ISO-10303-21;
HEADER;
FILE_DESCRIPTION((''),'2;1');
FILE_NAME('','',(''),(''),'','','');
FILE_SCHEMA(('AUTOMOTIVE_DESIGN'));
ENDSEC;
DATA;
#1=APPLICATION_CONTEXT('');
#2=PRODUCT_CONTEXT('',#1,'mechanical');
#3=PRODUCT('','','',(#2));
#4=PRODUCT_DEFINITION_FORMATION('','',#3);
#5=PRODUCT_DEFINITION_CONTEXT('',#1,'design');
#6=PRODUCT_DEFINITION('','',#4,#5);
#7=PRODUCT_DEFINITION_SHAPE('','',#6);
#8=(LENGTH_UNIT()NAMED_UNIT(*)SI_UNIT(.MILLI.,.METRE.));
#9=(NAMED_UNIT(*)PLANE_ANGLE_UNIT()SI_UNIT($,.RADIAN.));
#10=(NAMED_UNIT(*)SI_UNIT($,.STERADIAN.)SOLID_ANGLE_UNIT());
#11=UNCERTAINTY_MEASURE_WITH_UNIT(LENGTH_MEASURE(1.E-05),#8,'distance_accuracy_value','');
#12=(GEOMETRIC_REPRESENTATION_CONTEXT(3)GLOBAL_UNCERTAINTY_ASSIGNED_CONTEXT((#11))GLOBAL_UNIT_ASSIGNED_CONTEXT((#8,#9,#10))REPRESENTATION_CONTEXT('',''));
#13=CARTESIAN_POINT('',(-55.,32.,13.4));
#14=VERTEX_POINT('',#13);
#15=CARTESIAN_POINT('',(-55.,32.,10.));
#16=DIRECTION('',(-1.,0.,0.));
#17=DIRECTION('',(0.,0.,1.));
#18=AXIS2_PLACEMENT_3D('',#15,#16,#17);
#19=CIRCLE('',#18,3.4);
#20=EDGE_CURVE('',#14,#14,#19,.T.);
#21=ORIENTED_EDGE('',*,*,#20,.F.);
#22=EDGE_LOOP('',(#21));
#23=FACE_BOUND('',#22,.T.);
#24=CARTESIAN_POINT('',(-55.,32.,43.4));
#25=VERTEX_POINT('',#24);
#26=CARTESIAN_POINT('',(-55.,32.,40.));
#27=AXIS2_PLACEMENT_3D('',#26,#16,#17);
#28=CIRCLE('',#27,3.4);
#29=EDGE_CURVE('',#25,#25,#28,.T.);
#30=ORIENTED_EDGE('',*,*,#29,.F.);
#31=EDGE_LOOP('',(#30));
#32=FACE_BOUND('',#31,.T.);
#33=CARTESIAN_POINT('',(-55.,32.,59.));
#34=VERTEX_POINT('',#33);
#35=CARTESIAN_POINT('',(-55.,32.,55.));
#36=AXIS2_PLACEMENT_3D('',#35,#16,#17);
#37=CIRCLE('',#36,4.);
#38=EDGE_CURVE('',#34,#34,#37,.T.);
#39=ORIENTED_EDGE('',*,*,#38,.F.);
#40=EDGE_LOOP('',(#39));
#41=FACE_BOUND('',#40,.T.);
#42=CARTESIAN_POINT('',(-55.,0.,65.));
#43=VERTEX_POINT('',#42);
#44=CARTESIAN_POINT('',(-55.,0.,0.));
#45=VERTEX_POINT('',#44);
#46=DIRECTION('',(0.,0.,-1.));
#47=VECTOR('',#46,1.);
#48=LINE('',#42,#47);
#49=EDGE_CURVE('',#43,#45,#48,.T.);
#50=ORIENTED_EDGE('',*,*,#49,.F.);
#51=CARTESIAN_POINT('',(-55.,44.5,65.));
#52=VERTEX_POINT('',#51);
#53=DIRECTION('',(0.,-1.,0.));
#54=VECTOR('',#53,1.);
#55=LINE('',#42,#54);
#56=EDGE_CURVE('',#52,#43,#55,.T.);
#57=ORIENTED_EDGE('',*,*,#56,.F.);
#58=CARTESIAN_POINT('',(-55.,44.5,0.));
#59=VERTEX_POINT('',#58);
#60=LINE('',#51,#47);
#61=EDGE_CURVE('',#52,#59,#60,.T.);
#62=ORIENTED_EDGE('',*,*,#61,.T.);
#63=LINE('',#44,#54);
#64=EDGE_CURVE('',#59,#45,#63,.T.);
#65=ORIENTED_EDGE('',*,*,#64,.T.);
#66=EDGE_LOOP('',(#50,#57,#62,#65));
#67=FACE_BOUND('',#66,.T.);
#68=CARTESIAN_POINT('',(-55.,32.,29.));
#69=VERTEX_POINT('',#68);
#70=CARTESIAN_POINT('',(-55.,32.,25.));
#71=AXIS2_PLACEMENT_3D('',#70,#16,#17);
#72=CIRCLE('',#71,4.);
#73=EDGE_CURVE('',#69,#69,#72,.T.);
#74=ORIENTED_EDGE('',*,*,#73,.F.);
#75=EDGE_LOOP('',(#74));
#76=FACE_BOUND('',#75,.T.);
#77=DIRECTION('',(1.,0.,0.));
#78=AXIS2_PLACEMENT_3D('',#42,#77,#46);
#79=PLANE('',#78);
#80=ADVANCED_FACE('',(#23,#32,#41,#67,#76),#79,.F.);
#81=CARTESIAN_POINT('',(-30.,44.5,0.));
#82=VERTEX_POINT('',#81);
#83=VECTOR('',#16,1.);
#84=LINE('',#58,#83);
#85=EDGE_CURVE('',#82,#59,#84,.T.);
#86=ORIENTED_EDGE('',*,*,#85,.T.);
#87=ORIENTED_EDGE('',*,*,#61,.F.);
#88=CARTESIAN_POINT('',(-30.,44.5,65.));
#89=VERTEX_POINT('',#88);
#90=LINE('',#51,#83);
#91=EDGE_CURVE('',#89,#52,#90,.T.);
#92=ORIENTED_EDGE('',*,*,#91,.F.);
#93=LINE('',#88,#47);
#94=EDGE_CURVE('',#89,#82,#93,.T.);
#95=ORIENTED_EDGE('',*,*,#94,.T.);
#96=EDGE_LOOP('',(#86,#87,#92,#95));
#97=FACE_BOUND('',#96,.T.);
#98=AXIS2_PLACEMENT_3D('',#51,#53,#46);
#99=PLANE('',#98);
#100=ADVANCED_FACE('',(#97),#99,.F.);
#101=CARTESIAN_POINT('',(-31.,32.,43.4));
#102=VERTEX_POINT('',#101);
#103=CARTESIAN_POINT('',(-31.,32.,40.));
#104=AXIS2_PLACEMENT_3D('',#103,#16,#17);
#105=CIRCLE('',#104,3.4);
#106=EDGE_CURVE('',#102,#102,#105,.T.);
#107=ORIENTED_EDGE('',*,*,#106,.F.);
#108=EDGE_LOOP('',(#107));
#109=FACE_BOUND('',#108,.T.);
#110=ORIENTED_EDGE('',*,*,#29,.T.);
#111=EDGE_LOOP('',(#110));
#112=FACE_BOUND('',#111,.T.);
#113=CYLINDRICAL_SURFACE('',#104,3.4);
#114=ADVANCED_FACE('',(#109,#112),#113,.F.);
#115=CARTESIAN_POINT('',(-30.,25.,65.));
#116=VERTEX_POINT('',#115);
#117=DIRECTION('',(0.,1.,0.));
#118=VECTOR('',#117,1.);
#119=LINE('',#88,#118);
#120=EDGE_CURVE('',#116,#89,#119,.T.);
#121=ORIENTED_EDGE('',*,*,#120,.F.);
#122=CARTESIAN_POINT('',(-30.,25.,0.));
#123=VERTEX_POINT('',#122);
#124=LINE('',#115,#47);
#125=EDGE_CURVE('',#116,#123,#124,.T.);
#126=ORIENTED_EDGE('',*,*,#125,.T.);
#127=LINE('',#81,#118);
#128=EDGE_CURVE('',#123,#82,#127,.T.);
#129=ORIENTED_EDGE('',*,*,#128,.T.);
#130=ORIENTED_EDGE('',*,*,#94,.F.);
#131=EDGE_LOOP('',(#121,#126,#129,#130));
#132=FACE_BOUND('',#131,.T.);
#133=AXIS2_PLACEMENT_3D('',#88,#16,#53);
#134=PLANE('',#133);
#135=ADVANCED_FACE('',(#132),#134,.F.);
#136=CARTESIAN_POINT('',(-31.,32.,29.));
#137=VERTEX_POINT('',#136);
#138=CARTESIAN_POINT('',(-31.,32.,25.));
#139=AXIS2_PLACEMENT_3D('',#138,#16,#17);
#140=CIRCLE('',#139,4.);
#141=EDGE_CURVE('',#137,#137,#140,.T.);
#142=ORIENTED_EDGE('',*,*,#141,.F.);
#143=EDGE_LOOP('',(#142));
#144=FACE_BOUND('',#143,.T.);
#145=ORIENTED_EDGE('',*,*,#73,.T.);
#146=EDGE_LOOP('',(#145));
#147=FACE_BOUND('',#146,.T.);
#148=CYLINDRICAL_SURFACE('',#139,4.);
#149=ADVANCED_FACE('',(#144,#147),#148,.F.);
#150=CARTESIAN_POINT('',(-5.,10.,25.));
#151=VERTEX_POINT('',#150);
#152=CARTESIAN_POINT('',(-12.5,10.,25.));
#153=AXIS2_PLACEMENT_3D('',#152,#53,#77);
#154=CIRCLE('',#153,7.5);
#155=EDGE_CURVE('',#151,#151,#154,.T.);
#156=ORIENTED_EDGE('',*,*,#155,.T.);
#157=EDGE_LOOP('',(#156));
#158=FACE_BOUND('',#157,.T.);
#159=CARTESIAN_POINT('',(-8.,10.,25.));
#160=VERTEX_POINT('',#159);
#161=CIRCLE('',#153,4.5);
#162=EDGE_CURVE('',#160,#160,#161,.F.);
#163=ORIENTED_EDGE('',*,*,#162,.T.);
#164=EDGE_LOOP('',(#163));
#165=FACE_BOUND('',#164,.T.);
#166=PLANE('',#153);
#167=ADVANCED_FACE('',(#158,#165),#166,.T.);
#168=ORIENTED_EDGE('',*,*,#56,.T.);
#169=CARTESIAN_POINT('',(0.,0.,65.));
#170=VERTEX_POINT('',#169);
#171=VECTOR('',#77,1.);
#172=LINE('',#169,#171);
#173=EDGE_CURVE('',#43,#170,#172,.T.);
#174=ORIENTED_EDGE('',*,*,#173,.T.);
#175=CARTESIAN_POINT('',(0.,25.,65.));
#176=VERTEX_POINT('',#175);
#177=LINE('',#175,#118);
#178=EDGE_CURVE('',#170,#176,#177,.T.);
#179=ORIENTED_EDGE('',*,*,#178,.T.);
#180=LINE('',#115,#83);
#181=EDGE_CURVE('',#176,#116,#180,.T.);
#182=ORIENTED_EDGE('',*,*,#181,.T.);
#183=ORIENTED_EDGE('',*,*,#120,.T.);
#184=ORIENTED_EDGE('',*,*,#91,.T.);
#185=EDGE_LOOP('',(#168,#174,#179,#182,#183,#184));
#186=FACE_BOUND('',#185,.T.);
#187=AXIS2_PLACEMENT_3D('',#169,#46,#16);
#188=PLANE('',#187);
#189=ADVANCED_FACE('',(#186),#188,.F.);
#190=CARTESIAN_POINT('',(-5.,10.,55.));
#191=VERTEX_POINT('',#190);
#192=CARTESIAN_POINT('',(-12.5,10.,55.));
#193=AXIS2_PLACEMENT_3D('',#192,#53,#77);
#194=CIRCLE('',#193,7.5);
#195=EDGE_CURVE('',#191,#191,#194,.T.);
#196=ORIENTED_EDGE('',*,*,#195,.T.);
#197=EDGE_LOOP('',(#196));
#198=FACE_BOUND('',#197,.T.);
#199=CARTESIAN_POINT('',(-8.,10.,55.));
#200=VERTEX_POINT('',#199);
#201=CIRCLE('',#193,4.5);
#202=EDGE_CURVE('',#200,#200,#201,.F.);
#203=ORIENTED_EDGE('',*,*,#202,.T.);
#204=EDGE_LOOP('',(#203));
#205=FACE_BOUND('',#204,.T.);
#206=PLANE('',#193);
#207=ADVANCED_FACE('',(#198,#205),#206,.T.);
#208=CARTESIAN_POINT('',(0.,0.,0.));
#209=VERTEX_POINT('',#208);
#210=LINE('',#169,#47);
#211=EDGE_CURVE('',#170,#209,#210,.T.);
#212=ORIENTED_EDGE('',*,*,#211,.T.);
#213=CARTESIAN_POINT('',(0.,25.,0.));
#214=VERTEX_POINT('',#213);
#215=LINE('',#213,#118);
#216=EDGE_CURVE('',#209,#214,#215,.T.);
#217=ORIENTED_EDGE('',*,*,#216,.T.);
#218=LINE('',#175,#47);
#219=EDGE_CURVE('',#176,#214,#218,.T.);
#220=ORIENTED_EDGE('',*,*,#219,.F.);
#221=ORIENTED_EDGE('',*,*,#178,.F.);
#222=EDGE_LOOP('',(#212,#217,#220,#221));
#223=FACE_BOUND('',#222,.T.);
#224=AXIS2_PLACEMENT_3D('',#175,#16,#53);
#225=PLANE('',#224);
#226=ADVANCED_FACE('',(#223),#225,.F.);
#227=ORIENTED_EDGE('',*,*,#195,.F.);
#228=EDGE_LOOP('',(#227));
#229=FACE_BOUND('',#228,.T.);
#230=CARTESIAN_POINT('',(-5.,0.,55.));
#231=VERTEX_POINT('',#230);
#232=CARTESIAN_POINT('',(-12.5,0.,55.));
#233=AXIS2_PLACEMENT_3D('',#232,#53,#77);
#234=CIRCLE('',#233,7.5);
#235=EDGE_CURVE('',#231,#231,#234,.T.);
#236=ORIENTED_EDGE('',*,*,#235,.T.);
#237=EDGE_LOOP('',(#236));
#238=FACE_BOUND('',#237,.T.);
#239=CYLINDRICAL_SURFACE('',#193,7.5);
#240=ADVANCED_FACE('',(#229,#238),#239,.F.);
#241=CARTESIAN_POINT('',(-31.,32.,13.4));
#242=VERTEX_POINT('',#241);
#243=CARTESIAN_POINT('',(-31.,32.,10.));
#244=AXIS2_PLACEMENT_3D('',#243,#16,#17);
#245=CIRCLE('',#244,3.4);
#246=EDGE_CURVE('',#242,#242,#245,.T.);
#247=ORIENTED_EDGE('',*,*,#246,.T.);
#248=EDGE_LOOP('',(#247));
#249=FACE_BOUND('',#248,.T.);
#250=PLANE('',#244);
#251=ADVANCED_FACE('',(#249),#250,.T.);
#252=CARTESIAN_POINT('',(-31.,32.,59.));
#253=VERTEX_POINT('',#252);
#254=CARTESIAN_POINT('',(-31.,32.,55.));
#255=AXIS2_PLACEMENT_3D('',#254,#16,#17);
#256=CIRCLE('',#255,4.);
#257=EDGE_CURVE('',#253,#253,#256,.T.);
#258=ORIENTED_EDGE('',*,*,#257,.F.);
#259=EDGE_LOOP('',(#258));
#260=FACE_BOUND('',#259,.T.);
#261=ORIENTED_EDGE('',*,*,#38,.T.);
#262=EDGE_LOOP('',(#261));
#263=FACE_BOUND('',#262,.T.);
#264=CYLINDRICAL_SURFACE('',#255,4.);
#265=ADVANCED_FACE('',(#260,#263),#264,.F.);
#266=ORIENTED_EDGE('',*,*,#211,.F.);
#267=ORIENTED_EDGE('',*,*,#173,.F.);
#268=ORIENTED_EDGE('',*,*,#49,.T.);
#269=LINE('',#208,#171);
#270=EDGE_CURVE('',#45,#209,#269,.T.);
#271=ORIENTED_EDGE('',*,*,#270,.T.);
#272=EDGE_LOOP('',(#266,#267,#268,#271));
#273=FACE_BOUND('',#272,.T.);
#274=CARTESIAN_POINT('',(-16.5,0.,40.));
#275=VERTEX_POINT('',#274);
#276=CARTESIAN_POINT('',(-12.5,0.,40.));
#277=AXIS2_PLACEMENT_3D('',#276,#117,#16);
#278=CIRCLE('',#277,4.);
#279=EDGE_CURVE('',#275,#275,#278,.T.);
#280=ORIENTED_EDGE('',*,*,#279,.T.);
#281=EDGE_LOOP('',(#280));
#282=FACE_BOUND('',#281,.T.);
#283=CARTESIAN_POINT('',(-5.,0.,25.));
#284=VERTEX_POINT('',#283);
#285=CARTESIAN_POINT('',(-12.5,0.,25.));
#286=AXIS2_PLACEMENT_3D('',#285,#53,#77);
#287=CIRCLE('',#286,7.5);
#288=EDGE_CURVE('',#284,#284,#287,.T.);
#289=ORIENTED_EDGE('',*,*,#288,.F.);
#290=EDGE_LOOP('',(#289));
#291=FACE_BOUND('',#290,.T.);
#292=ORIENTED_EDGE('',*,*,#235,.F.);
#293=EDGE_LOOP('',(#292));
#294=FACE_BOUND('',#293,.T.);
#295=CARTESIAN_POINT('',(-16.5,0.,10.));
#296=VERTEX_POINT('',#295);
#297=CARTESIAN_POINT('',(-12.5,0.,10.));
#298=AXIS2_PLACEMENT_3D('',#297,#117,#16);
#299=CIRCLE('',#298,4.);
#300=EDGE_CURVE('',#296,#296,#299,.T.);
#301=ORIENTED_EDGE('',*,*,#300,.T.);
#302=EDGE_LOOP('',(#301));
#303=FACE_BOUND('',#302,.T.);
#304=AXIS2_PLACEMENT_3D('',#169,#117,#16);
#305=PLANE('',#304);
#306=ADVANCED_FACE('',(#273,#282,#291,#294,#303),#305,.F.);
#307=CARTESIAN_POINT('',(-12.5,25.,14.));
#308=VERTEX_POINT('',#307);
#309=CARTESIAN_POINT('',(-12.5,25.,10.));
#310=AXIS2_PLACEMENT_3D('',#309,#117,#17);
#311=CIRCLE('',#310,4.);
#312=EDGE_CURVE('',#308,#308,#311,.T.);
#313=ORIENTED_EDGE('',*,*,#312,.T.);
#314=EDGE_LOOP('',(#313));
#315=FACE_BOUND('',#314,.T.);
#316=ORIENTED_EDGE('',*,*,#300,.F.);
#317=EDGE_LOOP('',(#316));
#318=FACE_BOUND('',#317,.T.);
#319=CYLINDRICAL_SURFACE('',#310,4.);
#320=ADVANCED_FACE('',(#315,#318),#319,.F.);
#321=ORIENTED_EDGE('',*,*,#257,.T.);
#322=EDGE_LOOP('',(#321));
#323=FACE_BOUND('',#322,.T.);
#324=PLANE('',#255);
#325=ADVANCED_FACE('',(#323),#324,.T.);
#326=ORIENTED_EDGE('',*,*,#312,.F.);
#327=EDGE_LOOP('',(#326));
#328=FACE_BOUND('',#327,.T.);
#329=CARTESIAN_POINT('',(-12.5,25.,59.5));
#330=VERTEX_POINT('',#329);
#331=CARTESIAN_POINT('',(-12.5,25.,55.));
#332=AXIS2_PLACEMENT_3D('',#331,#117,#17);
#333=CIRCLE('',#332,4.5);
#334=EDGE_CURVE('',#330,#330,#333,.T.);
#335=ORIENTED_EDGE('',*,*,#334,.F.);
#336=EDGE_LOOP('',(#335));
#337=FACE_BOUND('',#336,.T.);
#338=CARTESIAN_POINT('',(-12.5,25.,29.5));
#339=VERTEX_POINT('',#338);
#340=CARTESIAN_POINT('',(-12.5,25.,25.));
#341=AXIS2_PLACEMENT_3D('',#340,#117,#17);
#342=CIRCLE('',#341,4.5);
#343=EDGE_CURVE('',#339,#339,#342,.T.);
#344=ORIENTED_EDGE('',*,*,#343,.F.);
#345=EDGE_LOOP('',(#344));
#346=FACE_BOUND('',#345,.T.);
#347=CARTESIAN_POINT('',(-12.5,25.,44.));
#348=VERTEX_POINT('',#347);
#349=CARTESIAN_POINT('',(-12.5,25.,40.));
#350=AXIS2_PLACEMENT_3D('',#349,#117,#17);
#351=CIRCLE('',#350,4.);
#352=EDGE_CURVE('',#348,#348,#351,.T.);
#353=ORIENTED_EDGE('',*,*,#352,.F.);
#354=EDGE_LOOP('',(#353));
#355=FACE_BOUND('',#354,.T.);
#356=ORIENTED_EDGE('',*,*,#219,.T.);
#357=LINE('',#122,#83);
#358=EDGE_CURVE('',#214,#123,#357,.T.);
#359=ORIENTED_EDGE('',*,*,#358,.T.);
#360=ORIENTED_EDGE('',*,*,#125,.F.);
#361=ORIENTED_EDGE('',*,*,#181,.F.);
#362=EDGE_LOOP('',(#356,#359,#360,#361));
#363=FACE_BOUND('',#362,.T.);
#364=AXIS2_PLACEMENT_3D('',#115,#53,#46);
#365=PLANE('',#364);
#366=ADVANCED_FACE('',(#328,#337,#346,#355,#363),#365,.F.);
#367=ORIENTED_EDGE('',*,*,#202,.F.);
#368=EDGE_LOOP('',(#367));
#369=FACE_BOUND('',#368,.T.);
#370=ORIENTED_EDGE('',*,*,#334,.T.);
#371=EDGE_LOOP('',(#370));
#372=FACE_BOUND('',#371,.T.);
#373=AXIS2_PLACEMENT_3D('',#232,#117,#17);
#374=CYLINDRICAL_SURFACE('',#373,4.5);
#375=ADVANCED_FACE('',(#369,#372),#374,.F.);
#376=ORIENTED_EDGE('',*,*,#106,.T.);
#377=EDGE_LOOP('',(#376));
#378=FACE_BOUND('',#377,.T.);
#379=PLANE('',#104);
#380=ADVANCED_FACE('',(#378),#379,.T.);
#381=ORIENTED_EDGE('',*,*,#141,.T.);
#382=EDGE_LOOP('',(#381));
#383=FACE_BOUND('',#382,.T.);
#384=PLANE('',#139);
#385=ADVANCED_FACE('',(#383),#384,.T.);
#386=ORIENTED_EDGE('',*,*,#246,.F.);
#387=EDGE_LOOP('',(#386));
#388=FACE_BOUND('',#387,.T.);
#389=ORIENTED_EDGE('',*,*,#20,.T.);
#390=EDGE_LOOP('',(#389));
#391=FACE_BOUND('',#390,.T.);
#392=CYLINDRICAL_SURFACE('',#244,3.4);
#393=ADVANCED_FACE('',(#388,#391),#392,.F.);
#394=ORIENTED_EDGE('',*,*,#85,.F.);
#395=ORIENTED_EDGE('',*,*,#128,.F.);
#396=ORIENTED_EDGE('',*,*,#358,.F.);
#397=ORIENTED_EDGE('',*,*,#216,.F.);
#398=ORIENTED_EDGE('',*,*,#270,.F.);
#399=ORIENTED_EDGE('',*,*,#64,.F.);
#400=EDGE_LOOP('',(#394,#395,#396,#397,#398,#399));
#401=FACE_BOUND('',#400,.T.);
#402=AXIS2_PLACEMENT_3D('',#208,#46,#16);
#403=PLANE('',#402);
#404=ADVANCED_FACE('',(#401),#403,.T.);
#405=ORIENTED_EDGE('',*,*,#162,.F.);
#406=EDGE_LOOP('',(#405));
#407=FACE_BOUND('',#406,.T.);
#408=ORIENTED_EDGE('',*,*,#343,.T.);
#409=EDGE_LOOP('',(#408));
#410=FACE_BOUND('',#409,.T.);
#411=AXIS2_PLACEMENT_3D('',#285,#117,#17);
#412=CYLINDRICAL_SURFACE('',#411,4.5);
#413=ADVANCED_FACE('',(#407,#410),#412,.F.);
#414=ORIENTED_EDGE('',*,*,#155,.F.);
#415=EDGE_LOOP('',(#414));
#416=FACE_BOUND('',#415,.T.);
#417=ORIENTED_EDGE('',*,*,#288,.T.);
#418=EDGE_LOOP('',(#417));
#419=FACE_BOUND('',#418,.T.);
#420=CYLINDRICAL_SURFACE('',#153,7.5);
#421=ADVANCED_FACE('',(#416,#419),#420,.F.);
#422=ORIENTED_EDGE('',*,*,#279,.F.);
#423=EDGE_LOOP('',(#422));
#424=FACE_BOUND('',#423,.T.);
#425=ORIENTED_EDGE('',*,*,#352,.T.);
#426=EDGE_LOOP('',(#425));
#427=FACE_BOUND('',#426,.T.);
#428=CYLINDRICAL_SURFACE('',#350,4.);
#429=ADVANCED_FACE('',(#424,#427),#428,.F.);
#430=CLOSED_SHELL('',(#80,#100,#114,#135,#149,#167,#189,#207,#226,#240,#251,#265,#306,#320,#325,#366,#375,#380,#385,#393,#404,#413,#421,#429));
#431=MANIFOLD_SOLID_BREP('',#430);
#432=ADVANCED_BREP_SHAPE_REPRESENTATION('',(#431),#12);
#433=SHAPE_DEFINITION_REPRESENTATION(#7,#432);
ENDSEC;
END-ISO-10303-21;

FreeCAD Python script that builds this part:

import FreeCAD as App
import Part
import Sketcher

doc = App.newDocument("Part")
body = doc.addObject("PartDesign::Body", "Body")

sketch1 = doc.addObject("Sketcher::SketchObject", "Sketch")
body.addObject(sketch1)
sketch1.AttachmentSupport = (doc.XY_Plane, [""])
sketch1.MapMode = "FlatFace"
sketch1.addGeometry(Part.LineSegment(App.Vector(-30, 25, 0), App.Vector(-30, 44, 0)), False)
sketch1.addGeometry(Part.LineSegment(App.Vector(-30, 44, 0), App.Vector(-55, 44, 0)), False)
sketch1.addGeometry(Part.LineSegment(App.Vector(-55, 44, 0), App.Vector(-55, 0, 0)), False)
sketch1.addGeometry(Part.LineSegment(App.Vector(-55, 0, 0), App.Vector(0, 0, 0)), False)
sketch1.addGeometry(Part.LineSegment(App.Vector(0, 0, 0), App.Vector(0, 25, 0)), False)
sketch1.addGeometry(Part.LineSegment(App.Vector(0, 25, 0), App.Vector(-30, 25, 0)), False)
sketch1.addConstraint(Sketcher.Constraint("Coincident", 0, 2, 1, 1))
sketch1.addConstraint(Sketcher.Constraint("Coincident", 1, 2, 2, 1))
sketch1.addConstraint(Sketcher.Constraint("Coincident", 2, 2, 3, 1))
sketch1.addConstraint(Sketcher.Constraint("Coincident", 3, 2, 4, 1))
sketch1.addConstraint(Sketcher.Constraint("Coincident", 4, 2, 5, 1))
sketch1.addConstraint(Sketcher.Constraint("Coincident", 5, 2, 0, 1))
sketch1.addConstraint(Sketcher.Constraint("Vertical", 0))
sketch1.addConstraint(Sketcher.Constraint("Horizontal", 1))
sketch1.addConstraint(Sketcher.Constraint("Vertical", 2))
sketch1.addConstraint(Sketcher.Constraint("Horizontal", 3))
sketch1.addConstraint(Sketcher.Constraint("Vertical", 4))
sketch1.addConstraint(Sketcher.Constraint("Horizontal", 5))
sketch1.addConstraint(Sketcher.Constraint("Coincident", 3, 2, -1, 1))
sketch1.addConstraint(Sketcher.Constraint("Equal", 1, 4))
sketch1.addConstraint(Sketcher.Constraint("DistanceX", 1, 2, 1, 1, 25.0))
sketch1.addConstraint(Sketcher.Constraint("DistanceX", 3, 1, 3, 2, 55.0))
sketch1.addConstraint(Sketcher.Constraint("DistanceY", 0, 1, 0, 2, 19.5))
pad1 = doc.addObject("PartDesign::Pad", "Pad")
body.addObject(pad1)
pad1.Profile = sketch1
pad1.Length = 65

sketch2 = doc.addObject("Sketcher::SketchObject", "Sketch001")
body.addObject(sketch2)
sketch2.AttachmentSupport = (doc.XZ_Plane, [""])
sketch2.MapMode = "FlatFace"
sketch2.AttachmentOffset = App.Placement(App.Vector(0, 0, -25), App.Rotation())
sketch2.addGeometry(Part.Circle(App.Vector(-12.5, 10, 0), App.Vector(0, 0, 1), 4), False)
sketch2.addGeometry(Part.Circle(App.Vector(-12.5, 40, 0), App.Vector(0, 0, 1), 4), False)
sketch2.addConstraint(Sketcher.Constraint("Equal", 0, 1))
sketch2.addConstraint(Sketcher.Constraint("Vertical", 0, 3, 1, 3))
sketch2.addConstraint(Sketcher.Constraint("Diameter", 0, 8.0))
sketch2.addConstraint(Sketcher.Constraint("DistanceY", -1, 1, 0, 3, 10.0))
sketch2.addConstraint(Sketcher.Constraint("DistanceY", -1, 1, 1, 3, 40.0))
sketch2.addConstraint(Sketcher.Constraint("DistanceX", 0, 3, -1, 1, 12.5))
doc.recompute()
hole = doc.addObject("PartDesign::Hole", "Hole")
body.addObject(hole)
hole.Profile = sketch2
hole.ThreadType = "None"
hole.Diameter = 8
hole.DepthType = "ThroughAll"
hole.Reversed = True

sketch3 = doc.addObject("Sketcher::SketchObject", "Sketch002")
body.addObject(sketch3)
sketch3.AttachmentSupport = (doc.XZ_Plane, [""])
sketch3.MapMode = "FlatFace"
sketch3.AttachmentOffset = App.Placement(App.Vector(0, 0, -25), App.Rotation())
sketch3.addGeometry(Part.Circle(App.Vector(-12.5, 25, 0), App.Vector(0, 0, 1), 4.5), False)
sketch3.addGeometry(Part.Circle(App.Vector(-12.5, 55, 0), App.Vector(0, 0, 1), 4.5), False)
sketch3.addConstraint(Sketcher.Constraint("Equal", 0, 1))
sketch3.addConstraint(Sketcher.Constraint("Vertical", 0, 3, 1, 3))
sketch3.addConstraint(Sketcher.Constraint("Diameter", 0, 9.0))
sketch3.addConstraint(Sketcher.Constraint("DistanceY", -1, 1, 0, 3, 25.0))
sketch3.addConstraint(Sketcher.Constraint("DistanceY", -1, 1, 1, 3, 55.0))
sketch3.addConstraint(Sketcher.Constraint("DistanceX", 0, 3, -1, 1, 12.5))
pocket1 = doc.addObject("PartDesign::Pocket", "Pocket")
body.addObject(pocket1)
pocket1.Profile = sketch3
pocket1.Type = "ThroughAll"
pocket1.Reversed = True

sketch4 = doc.addObject("Sketcher::SketchObject", "Sketch003")
body.addObject(sketch4)
sketch4.AttachmentSupport = (doc.XZ_Plane, [""])
sketch4.MapMode = "FlatFace"
sketch4.addGeometry(Part.Circle(App.Vector(-12, 55, 0), App.Vector(0, 0, 1), 8), False)
sketch4.addGeometry(Part.Circle(App.Vector(-12, 25, 0), App.Vector(0, 0, 1), 8), False)
sketch4.addConstraint(Sketcher.Constraint("Equal", 0, 1))
sketch4.addConstraint(Sketcher.Constraint("Vertical", 0, 3, 1, 3))
sketch4.addConstraint(Sketcher.Constraint("Diameter", 0, 15.0))
sketch4.addConstraint(Sketcher.Constraint("DistanceY", -1, 1, 0, 3, 55.0))
sketch4.addConstraint(Sketcher.Constraint("DistanceY", -1, 1, 1, 3, 25.0))
sketch4.addConstraint(Sketcher.Constraint("DistanceX", 0, 3, -1, 1, 12.5))
pocket2 = doc.addObject("PartDesign::Pocket", "Pocket001")
body.addObject(pocket2)
pocket2.Profile = sketch4
pocket2.Length = 10

sketch5 = doc.addObject("Sketcher::SketchObject", "Sketch004")
body.addObject(sketch5)
sketch5.AttachmentSupport = (doc.YZ_Plane, [""])
sketch5.MapMode = "FlatFace"
sketch5.AttachmentOffset = App.Placement(App.Vector(0, 0, -55), App.Rotation())
sketch5.addGeometry(Part.Circle(App.Vector(32, 10, 0), App.Vector(0, 0, 1), 3.4), False)
sketch5.addGeometry(Part.Circle(App.Vector(32, 25, 0), App.Vector(0, 0, 1), 4), False)
sketch5.addGeometry(Part.Circle(App.Vector(32, 40, 0), App.Vector(0, 0, 1), 3.4), False)
sketch5.addGeometry(Part.Circle(App.Vector(32, 55, 0), App.Vector(0, 0, 1), 4), False)
sketch5.addConstraint(Sketcher.Constraint("Equal", 0, 2))
sketch5.addConstraint(Sketcher.Constraint("Equal", 1, 3))
sketch5.addConstraint(Sketcher.Constraint("Vertical", 0, 3, 1, 3))
sketch5.addConstraint(Sketcher.Constraint("Vertical", 1, 3, 2, 3))
sketch5.addConstraint(Sketcher.Constraint("Vertical", 2, 3, 3, 3))
sketch5.addConstraint(Sketcher.Constraint("Diameter", 1, 8.0))
sketch5.addConstraint(Sketcher.Constraint("Diameter", 0, 6.8))
sketch5.addConstraint(Sketcher.Constraint("DistanceX", -1, 1, 0, 3, 32.0))
sketch5.addConstraint(Sketcher.Constraint("DistanceY", -1, 1, 0, 3, 10.0))
sketch5.addConstraint(Sketcher.Constraint("DistanceY", -1, 1, 1, 3, 25.0))
sketch5.addConstraint(Sketcher.Constraint("DistanceY", -1, 1, 2, 3, 40.0))
sketch5.addConstraint(Sketcher.Constraint("DistanceY", -1, 1, 3, 3, 55.0))
pocket3 = doc.addObject("PartDesign::Pocket", "Pocket002")
body.addObject(pocket3)
pocket3.Profile = sketch5
pocket3.Length = 24
pocket3.Reversed = True

doc.recompute()
